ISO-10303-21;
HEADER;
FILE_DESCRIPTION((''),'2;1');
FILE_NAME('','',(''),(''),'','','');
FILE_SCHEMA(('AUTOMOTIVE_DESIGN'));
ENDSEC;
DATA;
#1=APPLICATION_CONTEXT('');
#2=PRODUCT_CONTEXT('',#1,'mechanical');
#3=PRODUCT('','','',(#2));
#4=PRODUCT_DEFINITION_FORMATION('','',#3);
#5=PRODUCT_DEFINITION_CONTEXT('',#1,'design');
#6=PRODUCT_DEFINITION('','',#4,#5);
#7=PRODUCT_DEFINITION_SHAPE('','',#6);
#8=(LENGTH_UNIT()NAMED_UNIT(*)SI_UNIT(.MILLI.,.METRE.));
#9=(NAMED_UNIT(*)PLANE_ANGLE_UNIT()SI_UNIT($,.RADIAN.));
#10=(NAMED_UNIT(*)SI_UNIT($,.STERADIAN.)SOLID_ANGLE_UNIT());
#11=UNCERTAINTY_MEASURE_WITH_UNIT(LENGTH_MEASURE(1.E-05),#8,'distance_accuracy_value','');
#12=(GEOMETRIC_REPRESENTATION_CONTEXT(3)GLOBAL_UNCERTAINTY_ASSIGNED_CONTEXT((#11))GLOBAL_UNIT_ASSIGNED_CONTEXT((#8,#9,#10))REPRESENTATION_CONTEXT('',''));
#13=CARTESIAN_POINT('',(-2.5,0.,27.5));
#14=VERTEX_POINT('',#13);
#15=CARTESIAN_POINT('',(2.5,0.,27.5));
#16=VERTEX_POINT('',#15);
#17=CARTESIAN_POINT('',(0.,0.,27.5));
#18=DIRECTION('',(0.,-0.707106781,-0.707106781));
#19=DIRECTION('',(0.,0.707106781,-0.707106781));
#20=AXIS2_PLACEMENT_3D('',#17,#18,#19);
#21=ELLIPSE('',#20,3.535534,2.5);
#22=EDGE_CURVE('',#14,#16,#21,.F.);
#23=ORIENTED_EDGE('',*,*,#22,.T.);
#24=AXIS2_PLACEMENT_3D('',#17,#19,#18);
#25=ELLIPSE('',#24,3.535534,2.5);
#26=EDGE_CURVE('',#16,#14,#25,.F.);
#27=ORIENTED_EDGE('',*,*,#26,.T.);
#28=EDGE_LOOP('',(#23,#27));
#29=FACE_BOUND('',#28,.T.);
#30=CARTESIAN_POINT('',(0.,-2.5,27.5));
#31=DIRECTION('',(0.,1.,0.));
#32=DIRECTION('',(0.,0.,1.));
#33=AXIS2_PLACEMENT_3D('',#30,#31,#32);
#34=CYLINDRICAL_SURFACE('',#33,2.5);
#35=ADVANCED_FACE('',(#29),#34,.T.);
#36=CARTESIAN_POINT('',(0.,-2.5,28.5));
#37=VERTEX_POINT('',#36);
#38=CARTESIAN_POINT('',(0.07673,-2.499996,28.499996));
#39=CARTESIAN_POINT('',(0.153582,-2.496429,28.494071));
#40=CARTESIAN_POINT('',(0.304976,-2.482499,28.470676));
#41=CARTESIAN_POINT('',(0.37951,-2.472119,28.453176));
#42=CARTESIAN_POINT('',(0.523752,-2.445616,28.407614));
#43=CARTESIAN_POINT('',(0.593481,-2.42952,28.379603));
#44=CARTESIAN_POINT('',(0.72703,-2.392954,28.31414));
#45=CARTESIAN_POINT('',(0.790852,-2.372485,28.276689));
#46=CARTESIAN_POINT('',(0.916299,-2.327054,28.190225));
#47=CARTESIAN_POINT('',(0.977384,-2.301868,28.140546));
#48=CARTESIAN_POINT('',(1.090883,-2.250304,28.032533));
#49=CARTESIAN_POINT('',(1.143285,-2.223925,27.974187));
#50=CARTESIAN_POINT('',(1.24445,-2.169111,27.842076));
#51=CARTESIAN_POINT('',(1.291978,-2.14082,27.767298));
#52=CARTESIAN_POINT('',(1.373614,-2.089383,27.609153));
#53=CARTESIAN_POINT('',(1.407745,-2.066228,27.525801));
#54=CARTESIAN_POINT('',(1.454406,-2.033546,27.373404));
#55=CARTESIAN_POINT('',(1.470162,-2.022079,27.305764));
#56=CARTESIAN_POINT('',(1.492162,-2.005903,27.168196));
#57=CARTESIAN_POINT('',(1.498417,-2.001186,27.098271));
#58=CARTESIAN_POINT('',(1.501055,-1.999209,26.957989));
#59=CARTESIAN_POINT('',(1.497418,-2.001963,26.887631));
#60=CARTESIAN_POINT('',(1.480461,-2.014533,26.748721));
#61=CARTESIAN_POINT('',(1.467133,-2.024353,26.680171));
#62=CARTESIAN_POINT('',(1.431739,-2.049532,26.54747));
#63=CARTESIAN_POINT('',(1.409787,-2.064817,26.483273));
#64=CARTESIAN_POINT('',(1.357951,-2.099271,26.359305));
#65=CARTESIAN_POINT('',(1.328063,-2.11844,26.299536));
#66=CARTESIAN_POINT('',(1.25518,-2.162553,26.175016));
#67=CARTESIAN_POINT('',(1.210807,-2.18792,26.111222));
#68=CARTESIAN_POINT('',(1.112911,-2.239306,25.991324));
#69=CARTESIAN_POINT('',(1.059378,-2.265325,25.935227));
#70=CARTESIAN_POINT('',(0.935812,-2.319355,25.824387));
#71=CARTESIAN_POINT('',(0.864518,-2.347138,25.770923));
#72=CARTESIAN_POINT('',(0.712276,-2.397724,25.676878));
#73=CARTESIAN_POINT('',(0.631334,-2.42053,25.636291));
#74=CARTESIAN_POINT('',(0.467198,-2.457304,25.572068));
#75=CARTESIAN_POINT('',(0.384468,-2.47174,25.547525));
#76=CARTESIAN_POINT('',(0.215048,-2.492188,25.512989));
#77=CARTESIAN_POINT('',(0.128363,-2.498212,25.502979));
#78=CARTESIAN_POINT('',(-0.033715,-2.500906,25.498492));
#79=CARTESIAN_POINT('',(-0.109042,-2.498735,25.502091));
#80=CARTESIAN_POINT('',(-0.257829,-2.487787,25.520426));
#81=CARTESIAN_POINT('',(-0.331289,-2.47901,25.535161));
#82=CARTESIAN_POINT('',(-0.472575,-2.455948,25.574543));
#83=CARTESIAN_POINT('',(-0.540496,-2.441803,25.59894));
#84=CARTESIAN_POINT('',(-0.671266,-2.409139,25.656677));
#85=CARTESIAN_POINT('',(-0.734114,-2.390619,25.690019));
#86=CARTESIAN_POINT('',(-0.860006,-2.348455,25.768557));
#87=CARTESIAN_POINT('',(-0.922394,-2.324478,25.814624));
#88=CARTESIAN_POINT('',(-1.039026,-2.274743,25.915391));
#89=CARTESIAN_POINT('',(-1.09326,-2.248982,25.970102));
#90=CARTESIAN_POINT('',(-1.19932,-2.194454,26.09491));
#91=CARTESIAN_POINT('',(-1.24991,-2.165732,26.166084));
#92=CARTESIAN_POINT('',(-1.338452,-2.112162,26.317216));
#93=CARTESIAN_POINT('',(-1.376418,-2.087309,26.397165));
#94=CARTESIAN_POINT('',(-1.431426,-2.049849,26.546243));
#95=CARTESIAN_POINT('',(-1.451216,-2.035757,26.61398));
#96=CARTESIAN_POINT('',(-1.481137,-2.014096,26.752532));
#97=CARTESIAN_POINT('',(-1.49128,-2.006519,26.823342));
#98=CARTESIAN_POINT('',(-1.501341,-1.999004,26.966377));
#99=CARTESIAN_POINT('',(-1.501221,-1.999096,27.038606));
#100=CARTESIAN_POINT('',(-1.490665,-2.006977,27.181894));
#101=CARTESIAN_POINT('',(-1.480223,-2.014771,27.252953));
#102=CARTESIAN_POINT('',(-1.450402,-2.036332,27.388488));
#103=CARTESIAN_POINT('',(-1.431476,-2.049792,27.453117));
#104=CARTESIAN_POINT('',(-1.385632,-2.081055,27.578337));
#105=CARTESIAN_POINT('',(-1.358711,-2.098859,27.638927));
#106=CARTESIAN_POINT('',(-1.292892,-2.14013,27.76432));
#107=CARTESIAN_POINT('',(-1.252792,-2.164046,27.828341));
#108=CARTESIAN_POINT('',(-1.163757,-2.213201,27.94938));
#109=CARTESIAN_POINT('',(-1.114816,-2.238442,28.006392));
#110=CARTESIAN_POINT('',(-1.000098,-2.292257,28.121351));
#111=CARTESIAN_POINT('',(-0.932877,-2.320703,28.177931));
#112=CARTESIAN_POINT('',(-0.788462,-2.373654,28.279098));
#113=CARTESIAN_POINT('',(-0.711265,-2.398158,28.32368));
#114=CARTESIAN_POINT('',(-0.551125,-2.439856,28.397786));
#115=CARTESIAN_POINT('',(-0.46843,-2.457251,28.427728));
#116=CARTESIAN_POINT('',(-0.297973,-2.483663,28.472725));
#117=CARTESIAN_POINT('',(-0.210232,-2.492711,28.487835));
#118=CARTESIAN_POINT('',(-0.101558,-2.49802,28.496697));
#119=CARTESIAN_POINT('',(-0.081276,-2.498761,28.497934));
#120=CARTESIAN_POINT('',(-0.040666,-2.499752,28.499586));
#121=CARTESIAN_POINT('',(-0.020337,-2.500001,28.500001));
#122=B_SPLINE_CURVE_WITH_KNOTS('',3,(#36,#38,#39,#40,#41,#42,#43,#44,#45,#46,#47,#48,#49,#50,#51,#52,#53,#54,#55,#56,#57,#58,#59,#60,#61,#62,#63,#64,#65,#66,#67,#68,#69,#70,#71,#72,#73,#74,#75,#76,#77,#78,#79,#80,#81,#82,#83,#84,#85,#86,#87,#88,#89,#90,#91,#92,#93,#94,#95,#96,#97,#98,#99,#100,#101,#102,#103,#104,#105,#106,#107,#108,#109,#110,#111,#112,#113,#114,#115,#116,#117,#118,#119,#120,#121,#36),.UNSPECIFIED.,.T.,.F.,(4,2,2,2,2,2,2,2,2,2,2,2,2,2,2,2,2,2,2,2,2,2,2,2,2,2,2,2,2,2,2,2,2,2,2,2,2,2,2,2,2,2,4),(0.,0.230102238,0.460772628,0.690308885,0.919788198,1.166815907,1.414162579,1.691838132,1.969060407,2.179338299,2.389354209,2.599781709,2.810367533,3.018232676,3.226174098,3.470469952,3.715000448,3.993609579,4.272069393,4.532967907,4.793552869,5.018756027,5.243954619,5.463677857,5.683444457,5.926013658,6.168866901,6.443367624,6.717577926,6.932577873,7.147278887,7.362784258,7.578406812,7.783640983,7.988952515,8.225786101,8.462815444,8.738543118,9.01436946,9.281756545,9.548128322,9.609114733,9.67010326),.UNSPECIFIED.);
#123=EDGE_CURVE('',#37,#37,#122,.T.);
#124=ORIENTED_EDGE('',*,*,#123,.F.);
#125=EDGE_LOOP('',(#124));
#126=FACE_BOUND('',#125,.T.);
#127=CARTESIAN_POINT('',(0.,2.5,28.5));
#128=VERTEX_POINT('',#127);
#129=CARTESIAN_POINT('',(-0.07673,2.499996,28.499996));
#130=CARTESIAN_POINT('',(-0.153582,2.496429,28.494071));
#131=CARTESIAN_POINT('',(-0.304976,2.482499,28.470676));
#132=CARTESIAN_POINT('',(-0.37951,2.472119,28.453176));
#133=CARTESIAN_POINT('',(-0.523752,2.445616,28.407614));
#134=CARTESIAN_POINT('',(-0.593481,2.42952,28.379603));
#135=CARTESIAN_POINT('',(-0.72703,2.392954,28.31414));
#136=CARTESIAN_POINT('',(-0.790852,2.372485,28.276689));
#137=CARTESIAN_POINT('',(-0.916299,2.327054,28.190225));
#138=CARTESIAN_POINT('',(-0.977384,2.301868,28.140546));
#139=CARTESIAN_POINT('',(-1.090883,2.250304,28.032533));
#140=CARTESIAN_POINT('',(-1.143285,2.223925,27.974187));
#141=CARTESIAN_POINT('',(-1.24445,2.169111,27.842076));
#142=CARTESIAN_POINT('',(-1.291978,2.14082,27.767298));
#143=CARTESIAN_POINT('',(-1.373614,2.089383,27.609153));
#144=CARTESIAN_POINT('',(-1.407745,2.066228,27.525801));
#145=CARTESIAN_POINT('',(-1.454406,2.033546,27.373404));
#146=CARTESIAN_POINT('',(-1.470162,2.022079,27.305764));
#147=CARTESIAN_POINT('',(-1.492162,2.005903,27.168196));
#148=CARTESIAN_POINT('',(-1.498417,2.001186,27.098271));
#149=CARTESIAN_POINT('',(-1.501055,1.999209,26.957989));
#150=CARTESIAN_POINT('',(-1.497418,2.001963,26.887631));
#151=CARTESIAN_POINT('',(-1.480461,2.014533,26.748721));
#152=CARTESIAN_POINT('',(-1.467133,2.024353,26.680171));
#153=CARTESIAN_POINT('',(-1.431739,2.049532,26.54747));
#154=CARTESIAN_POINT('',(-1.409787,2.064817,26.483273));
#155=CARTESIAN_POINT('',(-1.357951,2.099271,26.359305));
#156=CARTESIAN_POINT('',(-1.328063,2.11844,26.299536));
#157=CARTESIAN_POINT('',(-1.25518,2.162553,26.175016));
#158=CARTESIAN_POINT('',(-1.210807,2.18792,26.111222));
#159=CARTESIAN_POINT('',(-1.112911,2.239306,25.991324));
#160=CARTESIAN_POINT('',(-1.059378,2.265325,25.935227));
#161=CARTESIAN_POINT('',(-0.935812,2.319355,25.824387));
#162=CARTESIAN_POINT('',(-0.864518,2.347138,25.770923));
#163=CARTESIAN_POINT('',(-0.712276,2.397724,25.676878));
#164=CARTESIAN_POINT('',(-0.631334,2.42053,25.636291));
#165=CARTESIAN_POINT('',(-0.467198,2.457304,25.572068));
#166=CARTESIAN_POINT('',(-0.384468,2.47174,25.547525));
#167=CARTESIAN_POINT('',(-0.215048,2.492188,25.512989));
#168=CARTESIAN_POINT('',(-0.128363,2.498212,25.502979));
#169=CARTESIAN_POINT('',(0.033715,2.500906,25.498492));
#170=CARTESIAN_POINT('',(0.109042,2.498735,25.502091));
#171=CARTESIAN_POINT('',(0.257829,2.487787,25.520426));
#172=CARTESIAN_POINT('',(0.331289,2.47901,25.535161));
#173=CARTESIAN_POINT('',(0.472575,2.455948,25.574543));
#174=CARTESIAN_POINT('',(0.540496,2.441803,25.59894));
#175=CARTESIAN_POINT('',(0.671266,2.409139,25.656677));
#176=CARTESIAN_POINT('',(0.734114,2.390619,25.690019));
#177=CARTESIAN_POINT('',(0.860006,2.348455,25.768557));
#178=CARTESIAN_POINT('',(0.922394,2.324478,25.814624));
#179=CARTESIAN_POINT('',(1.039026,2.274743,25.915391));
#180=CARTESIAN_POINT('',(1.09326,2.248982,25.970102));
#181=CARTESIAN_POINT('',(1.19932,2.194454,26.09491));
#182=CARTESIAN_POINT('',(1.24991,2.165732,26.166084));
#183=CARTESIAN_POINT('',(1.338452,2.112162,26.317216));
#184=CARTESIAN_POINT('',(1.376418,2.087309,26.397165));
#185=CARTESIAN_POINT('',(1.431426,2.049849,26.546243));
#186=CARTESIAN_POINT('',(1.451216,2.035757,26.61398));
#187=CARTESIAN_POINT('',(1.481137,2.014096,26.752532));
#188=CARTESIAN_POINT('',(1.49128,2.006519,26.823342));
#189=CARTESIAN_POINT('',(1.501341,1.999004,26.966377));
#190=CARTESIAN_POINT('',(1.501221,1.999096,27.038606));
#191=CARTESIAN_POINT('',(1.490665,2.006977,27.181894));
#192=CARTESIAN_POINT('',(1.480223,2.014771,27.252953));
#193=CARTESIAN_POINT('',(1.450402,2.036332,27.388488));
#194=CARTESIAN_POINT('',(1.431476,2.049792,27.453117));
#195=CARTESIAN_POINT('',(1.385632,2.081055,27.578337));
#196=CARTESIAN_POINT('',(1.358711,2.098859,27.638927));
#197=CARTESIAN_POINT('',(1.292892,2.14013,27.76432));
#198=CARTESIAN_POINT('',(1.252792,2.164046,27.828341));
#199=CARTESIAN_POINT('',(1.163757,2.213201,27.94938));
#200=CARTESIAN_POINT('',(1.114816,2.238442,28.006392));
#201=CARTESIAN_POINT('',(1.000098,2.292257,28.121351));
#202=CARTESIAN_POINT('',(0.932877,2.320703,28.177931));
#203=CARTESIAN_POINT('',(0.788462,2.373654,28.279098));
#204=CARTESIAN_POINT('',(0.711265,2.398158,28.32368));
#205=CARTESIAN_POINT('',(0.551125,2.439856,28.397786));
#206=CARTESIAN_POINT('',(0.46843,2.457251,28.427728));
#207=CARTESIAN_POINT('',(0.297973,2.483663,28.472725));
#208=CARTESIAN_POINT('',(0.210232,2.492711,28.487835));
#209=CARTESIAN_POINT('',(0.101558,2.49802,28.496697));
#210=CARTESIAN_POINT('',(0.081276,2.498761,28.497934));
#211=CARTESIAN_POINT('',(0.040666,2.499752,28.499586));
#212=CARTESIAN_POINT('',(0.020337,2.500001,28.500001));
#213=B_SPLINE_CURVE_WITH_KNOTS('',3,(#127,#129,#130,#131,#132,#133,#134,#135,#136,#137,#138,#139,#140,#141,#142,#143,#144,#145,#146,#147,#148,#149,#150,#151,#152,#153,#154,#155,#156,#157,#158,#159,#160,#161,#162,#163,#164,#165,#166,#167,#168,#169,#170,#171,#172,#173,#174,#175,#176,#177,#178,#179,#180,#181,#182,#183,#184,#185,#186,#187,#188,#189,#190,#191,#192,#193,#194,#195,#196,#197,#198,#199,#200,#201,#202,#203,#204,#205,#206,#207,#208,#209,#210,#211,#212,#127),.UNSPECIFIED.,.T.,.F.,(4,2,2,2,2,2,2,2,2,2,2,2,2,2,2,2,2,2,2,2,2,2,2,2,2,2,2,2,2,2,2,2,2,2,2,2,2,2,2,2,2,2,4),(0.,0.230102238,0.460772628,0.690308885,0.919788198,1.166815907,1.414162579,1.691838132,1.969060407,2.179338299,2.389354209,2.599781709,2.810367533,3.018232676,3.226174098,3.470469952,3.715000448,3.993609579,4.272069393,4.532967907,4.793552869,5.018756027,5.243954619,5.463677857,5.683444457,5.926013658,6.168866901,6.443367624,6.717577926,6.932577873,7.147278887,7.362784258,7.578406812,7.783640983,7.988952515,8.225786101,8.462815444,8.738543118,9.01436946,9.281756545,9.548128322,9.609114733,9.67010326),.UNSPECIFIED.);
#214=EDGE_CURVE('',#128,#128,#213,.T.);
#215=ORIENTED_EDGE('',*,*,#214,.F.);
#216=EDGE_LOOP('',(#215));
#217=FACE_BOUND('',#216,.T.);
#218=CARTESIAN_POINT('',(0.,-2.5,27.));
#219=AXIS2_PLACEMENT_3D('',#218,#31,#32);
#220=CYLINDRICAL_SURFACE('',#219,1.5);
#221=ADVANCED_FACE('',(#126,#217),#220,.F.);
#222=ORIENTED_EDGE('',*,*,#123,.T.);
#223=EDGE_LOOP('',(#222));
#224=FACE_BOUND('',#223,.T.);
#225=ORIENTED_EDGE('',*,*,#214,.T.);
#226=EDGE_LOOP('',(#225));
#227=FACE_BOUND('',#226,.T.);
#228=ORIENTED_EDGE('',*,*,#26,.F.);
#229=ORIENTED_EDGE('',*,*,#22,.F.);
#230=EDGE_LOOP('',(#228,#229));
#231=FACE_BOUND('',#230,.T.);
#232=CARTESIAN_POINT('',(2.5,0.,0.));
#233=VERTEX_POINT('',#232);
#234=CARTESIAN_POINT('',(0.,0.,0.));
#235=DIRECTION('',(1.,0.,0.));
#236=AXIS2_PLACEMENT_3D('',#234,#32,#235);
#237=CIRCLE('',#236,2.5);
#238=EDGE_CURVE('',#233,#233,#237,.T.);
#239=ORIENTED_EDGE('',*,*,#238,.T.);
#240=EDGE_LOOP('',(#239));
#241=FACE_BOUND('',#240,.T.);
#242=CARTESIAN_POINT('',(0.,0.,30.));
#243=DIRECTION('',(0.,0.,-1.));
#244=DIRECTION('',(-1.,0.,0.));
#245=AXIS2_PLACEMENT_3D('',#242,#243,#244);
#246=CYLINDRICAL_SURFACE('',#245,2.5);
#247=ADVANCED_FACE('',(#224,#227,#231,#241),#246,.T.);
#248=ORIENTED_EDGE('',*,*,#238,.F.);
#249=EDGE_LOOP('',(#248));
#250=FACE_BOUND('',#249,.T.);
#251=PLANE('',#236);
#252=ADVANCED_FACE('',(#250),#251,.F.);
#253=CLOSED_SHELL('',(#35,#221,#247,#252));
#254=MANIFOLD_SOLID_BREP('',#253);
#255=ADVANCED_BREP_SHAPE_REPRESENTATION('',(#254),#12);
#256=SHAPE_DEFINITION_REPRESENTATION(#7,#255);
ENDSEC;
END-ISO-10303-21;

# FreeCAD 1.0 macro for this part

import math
import FreeCAD as App
import Part
import Sketcher

V = App.Vector

doc = App.newDocument("Part")
body = doc.addObject("PartDesign::Body", "Body")

# Sketch on XY plane
sketch1 = body.newObject("Sketcher::SketchObject", "Sketch")
sketch1.AttachmentSupport = (doc.getObject("XY_Plane"), [""])
sketch1.MapMode = "FlatFace"
sketch1.addGeometry(Part.Circle(V(0, 0, 0), V(0, 0, 1), 2.5), False)
sketch1.addConstraint([
    Sketcher.Constraint("Coincident", 0, 3, -1, 1),
    Sketcher.Constraint("Diameter", 0, 5.0),
])
pad1 = body.newObject("PartDesign::Pad", "Pad")
pad1.Profile = sketch1
pad1.Length = 30

# Sketch on XZ plane
sketch2 = body.newObject("Sketcher::SketchObject", "Sketch001")
sketch2.AttachmentSupport = (doc.getObject("XZ_Plane"), [""])
sketch2.MapMode = "FlatFace"
sketch2.addGeometry([
    Part.Circle(V(0, 27, 0), V(0, 0, 1), 1.5),  # 0
    Part.ArcOfCircle(Part.Circle(V(0, 27.5, 0), V(0, 0, 1), 2.5), math.radians(90), math.radians(180)),  # 1
    Part.LineSegment(V(-2.5, 27.5, 0), V(-2.5, 30, 0)),  # 2
    Part.LineSegment(V(-2.5, 30, 0), V(0, 30, 0)),  # 3
    Part.LineSegment(V(2.5, 30, 0), V(2.5, 27.5, 0)),  # 4
    Part.ArcOfCircle(Part.Circle(V(0, 27.5, 0), V(0, 0, 1), 2.5), math.radians(0), math.radians(90)),  # 5
    Part.LineSegment(V(0, 30, 0), V(2.5, 30, 0)),  # 6
], False)
sketch2.addConstraint([
    Sketcher.Constraint("Tangent", 1, 2, 2, 1),
    Sketcher.Constraint("Coincident", 2, 2, 3, 1),
    Sketcher.Constraint("Tangent", 3, 2, 1, 1),
    Sketcher.Constraint("Tangent", 4, 2, 5, 1),
    Sketcher.Constraint("Tangent", 5, 2, 6, 1),
    Sketcher.Constraint("Coincident", 6, 2, 4, 1),
    Sketcher.Constraint("Vertical", 2),
    Sketcher.Constraint("Horizontal", 3),
    Sketcher.Constraint("Vertical", 4),
    Sketcher.Constraint("Horizontal", 6),
    Sketcher.Constraint("Coincident", 5, 3, 1, 3),
    Sketcher.Constraint("Equal", 1, 5),
    Sketcher.Constraint("PointOnObject", 0, 3, -2),
    Sketcher.Constraint("PointOnObject", 1, 3, -2),
    Sketcher.Constraint("Diameter", 0, 3.0),
    Sketcher.Constraint("Radius", 1, 2.5),
    Sketcher.Constraint("DistanceY", -1, 1, 0, 3, 27.0),
    Sketcher.Constraint("DistanceY", -1, 1, 2, 2, 30.0),
])
pocket1 = body.newObject("PartDesign::Pocket", "Pocket")
pocket1.Profile = sketch2
pocket1.Type = "ThroughAll"
pocket1.Midplane = True

doc.recompute()
